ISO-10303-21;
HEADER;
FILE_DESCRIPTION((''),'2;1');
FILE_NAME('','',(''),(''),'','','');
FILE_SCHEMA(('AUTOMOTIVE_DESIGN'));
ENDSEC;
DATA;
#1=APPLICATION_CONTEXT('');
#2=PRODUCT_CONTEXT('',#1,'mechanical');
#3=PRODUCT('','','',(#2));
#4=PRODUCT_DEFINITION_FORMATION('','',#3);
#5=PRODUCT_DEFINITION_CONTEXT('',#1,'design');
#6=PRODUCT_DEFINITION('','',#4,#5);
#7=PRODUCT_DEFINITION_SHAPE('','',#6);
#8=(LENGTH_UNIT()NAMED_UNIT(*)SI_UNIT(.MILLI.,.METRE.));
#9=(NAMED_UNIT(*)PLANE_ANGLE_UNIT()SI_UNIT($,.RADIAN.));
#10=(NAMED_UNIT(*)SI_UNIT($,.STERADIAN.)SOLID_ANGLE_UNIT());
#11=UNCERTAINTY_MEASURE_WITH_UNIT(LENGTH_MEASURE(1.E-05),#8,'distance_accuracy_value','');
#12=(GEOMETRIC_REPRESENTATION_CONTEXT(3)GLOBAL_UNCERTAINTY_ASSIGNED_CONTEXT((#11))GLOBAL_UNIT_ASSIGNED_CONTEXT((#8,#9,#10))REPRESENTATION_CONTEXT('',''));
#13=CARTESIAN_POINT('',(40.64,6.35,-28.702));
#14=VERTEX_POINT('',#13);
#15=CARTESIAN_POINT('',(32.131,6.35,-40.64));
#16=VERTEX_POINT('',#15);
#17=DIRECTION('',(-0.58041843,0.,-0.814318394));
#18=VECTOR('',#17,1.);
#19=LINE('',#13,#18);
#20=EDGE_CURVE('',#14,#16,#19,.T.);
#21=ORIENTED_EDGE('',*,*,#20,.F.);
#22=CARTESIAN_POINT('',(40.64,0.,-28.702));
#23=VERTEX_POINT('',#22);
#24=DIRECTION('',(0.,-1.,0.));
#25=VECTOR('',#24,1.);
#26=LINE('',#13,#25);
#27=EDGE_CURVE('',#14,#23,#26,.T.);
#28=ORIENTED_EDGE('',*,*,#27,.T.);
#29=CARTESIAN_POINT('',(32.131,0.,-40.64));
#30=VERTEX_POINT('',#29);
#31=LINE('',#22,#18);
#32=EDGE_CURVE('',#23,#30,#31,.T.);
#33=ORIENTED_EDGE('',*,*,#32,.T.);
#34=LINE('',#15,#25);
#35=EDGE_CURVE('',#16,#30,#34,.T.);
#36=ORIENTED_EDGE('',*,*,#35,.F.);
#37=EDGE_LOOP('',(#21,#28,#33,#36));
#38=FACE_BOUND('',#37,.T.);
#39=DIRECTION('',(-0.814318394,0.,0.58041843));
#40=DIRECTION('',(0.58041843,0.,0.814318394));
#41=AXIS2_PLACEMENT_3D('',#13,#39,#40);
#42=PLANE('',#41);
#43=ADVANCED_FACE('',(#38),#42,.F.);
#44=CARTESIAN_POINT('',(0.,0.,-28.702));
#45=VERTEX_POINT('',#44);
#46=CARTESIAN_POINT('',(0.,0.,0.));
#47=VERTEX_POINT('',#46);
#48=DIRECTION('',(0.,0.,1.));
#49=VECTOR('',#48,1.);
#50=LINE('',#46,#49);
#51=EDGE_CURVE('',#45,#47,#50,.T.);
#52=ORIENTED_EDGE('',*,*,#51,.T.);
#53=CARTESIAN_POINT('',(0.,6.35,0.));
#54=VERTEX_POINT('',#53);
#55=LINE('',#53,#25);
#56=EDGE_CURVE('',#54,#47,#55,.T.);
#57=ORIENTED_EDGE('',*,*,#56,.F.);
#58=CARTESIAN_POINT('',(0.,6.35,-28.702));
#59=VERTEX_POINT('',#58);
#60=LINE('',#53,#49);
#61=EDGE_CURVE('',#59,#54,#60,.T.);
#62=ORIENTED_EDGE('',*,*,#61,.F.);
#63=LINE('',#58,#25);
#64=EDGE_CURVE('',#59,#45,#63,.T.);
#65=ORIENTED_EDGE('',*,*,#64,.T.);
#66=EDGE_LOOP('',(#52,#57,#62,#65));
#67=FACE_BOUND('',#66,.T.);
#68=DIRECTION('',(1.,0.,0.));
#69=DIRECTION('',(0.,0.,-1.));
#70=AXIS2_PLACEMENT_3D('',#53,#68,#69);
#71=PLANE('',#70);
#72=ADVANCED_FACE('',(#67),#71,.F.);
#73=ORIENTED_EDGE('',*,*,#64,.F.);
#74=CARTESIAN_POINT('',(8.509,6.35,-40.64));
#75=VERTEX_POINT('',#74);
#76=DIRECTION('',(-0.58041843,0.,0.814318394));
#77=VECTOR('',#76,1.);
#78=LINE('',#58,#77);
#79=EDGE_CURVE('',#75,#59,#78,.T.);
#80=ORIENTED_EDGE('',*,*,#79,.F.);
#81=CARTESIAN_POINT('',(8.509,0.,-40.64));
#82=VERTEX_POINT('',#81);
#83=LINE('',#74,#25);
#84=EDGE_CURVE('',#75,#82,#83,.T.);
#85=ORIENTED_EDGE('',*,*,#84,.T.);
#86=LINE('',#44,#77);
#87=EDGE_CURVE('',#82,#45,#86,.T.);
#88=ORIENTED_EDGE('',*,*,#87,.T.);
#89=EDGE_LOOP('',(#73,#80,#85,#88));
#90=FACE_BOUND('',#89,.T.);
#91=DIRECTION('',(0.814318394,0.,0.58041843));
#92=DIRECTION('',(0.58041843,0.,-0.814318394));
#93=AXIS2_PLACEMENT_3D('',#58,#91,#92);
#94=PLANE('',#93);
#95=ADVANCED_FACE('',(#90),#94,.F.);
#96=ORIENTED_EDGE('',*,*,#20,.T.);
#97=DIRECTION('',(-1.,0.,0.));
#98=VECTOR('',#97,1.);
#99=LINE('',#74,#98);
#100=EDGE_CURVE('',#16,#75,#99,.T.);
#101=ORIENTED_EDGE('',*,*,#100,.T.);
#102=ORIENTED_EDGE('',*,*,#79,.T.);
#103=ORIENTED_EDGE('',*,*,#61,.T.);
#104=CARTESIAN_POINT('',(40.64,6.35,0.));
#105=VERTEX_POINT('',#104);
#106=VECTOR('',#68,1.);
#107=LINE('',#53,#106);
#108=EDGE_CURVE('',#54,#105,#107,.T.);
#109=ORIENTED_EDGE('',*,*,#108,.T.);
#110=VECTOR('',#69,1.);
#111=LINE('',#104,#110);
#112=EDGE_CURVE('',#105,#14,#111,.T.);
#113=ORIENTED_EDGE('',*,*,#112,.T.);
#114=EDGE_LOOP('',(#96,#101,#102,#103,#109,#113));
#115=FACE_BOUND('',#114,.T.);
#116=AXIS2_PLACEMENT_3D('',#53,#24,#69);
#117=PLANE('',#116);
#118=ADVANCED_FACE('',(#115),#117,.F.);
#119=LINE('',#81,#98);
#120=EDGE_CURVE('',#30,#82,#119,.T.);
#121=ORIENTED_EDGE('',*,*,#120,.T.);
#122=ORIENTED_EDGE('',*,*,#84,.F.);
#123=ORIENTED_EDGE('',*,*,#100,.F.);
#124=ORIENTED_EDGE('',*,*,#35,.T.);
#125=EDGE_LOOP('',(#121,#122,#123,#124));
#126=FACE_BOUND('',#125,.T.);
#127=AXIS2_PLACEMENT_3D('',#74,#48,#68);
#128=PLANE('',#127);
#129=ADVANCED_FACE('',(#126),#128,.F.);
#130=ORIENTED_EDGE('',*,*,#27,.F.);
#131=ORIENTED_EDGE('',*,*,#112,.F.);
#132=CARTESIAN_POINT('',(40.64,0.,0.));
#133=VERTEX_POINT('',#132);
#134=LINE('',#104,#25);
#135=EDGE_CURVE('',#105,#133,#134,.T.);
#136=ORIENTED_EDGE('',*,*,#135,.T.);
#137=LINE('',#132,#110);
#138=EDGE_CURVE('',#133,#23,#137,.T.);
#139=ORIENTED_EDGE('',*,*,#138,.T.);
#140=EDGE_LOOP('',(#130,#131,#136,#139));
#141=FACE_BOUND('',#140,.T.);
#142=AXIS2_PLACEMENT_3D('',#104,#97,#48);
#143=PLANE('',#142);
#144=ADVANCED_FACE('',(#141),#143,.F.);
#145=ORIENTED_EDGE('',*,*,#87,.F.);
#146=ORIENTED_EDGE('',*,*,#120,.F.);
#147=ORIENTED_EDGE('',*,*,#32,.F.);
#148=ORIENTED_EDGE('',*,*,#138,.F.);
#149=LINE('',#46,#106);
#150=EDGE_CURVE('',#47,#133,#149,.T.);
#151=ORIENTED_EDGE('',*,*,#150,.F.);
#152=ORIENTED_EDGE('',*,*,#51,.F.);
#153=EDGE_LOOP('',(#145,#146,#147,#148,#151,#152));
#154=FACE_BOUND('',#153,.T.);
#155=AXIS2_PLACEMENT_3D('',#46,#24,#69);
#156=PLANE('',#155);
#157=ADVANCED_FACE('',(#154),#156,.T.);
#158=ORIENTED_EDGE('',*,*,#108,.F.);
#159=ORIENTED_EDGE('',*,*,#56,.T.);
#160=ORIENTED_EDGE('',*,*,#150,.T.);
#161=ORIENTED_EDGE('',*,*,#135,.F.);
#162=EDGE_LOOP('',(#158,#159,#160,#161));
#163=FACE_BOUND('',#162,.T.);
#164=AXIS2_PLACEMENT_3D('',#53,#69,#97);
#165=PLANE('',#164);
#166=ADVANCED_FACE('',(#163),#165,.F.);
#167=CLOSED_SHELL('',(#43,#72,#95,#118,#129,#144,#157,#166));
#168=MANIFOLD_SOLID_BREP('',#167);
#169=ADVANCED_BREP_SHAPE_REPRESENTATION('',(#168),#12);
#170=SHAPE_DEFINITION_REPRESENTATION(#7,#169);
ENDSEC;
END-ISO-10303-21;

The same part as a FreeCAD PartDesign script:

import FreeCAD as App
import Part
import Sketcher

V = App.Vector
Q = App.Units.Quantity

doc = App.newDocument("Part")
params = doc.addObject("Spreadsheet::Sheet", "Params")
for row, (alias, value) in enumerate([
    ("sketch1_width", "1.6 in"),
    ("sketch1_width2", "0.93 in"),
    ("sketch1_height", "1.13 in"),
    ("pad1_length", "0.25 in"),
], start=1):
    params.set(f"A{row}", alias)
    params.set(f"B{row}", "=" + value)
    params.setAlias(f"B{row}", alias)

body = doc.addObject("PartDesign::Body", "Body")

# Sketch on XZ plane
sketch1 = body.newObject("Sketcher::SketchObject", "Sketch")
sketch1.AttachmentSupport = (doc.getObject("XZ_Plane"), [""])
sketch1.MapMode = "FlatFace"
sketch1.addGeometry([
    Part.LineSegment(V(8.509, -40.64, 0), V(0, -28.702, 0)),  # 0
    Part.LineSegment(V(0, -28.702, 0), V(0, 0, 0)),  # 1
    Part.LineSegment(V(0, 0, 0), V(40.64, 0, 0)),  # 2
    Part.LineSegment(V(40.64, 0, 0), V(40.64, -28.702, 0)),  # 3
    Part.LineSegment(V(40.64, -28.702, 0), V(32.131, -40.64, 0)),  # 4
    Part.LineSegment(V(32.131, -40.64, 0), V(8.509, -40.64, 0)),  # 5
], False)
sketch1.addConstraint([
    Sketcher.Constraint("Coincident", 0, 2, 1, 1),
    Sketcher.Constraint("Coincident", 1, 2, 2, 1),
    Sketcher.Constraint("Coincident", 2, 2, 3, 1),
    Sketcher.Constraint("Coincident", 3, 2, 4, 1),
    Sketcher.Constraint("Coincident", 4, 2, 5, 1),
    Sketcher.Constraint("Coincident", 5, 2, 0, 1),
    Sketcher.Constraint("Vertical", 1),
    Sketcher.Constraint("Horizontal", 2),
    Sketcher.Constraint("Vertical", 3),
    Sketcher.Constraint("Horizontal", 5),
    Sketcher.Constraint("Coincident", 1, 2, -1, 1),
    Sketcher.Constraint("Horizontal", 0, 2, 3, 2),
    Sketcher.Constraint("Equal", 0, 4),
    Sketcher.Constraint("DistanceX", 2, 1, 2, 2, Q("1.6 in")),
    Sketcher.Constraint("DistanceX", 5, 2, 5, 1, Q("0.93 in")),
    Sketcher.Constraint("DistanceY", 1, 1, 1, 2, Q("1.13 in")),
    Sketcher.Constraint("DistanceY", 4, 2, -1, 1, Q("1.6 in")),
])
sketch1.setExpression("Constraints[13]", "Params.sketch1_width")
sketch1.setExpression("Constraints[14]", "Params.sketch1_width2")
sketch1.setExpression("Constraints[15]", "Params.sketch1_height")
pad1 = body.newObject("PartDesign::Pad", "Pad")
pad1.Profile = sketch1
pad1.setExpression("Length", "Params.pad1_length")
pad1.Reversed = True

doc.recompute()
